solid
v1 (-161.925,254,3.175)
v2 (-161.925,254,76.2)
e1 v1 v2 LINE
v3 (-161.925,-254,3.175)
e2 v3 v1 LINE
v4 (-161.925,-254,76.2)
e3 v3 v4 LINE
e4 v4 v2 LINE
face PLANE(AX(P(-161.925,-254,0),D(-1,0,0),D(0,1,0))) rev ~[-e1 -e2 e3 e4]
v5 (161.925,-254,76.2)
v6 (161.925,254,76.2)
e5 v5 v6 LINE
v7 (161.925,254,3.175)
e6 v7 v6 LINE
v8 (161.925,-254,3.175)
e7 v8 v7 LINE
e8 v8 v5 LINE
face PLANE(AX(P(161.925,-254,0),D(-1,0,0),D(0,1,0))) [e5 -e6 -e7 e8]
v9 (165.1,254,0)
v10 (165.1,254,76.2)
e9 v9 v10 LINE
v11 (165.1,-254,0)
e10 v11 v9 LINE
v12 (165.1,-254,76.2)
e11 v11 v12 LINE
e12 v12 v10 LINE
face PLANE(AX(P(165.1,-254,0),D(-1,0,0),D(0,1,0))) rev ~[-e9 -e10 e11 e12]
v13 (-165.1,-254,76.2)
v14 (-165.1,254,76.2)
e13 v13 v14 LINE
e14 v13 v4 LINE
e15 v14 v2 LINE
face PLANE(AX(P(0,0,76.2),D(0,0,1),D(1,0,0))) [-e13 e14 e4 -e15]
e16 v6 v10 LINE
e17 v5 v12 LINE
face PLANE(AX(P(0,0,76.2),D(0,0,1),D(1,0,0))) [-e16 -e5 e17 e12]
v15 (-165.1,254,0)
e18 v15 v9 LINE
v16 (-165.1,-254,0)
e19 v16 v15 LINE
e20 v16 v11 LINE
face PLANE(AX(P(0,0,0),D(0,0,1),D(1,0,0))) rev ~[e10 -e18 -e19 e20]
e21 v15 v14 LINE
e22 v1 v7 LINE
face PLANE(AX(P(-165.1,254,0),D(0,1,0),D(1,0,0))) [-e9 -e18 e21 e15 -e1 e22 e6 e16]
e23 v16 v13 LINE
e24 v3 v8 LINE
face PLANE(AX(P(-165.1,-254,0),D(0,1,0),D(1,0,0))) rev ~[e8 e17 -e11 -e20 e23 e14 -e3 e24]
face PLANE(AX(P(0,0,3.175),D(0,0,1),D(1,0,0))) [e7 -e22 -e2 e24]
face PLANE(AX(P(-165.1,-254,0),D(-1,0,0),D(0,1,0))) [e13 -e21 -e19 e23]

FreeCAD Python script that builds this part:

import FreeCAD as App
import Part
import Sketcher

V = App.Vector
Q = App.Units.Quantity


def faces_at(feature, points):
    """Names of the faces that lie closest to the given points."""
    faces = feature.Shape.Faces
    near = lambda p: min(range(len(faces)), key=lambda i: faces[i].distToShape(Part.Vertex(*p))[0])
    return sorted({f"Face{near(p) + 1}" for p in points})


def add_polygon(sketch, points):
    """Adds a closed chain of lines whose ends are joined by coincident constraints."""
    first, n = sketch.GeometryCount, len(points)
    for a, b in zip(points, points[1:] + points[:1]):
        sketch.addGeometry(Part.LineSegment(App.Vector(*a, 0), App.Vector(*b, 0)), False)
    for i in range(n):
        sketch.addConstraint(Sketcher.Constraint("Coincident", first + i, 2, first + (i + 1) % n, 1))

doc = App.newDocument("Part")
body = doc.addObject("PartDesign::Body", "Body")

sketch1 = body.newObject("Sketcher::SketchObject", "Sketch")
sketch1.AttachmentSupport = (doc.getObject("XY_Plane"), [""])
sketch1.MapMode = "FlatFace"
add_polygon(sketch1, [(-165.1, 254), (-165.1, -254), (165.1, -254), (165.1, 254)])
sketch1.addConstraint([
    Sketcher.Constraint("Vertical", 0),
    Sketcher.Constraint("Horizontal", 1),
    Sketcher.Constraint("Vertical", 2),
    Sketcher.Constraint("Horizontal", 3),
    Sketcher.Constraint("Symmetric", 0, 2, 2, 2, -1, 1),
    Sketcher.Constraint("DistanceX", 1, 1, 1, 2, Q("13 in")),
    Sketcher.Constraint("DistanceY", 0, 2, 0, 1, Q("20 in")),
])
pad1 = body.newObject("PartDesign::Pad", "Pad")
pad1.Profile = sketch1
pad1.Length = Q("3 in")
doc.recompute()

thickness = body.newObject("PartDesign::Thickness", "Thickness")
thickness.Base = (pad1, faces_at(pad1, [(0, 0, 76.2), (0, -254, 38.1), (0, 254, 38.1)]))
thickness.Value = Q("0.125 in")
thickness.Reversed = True
thickness.Join = "Arc"

doc.recompute()
